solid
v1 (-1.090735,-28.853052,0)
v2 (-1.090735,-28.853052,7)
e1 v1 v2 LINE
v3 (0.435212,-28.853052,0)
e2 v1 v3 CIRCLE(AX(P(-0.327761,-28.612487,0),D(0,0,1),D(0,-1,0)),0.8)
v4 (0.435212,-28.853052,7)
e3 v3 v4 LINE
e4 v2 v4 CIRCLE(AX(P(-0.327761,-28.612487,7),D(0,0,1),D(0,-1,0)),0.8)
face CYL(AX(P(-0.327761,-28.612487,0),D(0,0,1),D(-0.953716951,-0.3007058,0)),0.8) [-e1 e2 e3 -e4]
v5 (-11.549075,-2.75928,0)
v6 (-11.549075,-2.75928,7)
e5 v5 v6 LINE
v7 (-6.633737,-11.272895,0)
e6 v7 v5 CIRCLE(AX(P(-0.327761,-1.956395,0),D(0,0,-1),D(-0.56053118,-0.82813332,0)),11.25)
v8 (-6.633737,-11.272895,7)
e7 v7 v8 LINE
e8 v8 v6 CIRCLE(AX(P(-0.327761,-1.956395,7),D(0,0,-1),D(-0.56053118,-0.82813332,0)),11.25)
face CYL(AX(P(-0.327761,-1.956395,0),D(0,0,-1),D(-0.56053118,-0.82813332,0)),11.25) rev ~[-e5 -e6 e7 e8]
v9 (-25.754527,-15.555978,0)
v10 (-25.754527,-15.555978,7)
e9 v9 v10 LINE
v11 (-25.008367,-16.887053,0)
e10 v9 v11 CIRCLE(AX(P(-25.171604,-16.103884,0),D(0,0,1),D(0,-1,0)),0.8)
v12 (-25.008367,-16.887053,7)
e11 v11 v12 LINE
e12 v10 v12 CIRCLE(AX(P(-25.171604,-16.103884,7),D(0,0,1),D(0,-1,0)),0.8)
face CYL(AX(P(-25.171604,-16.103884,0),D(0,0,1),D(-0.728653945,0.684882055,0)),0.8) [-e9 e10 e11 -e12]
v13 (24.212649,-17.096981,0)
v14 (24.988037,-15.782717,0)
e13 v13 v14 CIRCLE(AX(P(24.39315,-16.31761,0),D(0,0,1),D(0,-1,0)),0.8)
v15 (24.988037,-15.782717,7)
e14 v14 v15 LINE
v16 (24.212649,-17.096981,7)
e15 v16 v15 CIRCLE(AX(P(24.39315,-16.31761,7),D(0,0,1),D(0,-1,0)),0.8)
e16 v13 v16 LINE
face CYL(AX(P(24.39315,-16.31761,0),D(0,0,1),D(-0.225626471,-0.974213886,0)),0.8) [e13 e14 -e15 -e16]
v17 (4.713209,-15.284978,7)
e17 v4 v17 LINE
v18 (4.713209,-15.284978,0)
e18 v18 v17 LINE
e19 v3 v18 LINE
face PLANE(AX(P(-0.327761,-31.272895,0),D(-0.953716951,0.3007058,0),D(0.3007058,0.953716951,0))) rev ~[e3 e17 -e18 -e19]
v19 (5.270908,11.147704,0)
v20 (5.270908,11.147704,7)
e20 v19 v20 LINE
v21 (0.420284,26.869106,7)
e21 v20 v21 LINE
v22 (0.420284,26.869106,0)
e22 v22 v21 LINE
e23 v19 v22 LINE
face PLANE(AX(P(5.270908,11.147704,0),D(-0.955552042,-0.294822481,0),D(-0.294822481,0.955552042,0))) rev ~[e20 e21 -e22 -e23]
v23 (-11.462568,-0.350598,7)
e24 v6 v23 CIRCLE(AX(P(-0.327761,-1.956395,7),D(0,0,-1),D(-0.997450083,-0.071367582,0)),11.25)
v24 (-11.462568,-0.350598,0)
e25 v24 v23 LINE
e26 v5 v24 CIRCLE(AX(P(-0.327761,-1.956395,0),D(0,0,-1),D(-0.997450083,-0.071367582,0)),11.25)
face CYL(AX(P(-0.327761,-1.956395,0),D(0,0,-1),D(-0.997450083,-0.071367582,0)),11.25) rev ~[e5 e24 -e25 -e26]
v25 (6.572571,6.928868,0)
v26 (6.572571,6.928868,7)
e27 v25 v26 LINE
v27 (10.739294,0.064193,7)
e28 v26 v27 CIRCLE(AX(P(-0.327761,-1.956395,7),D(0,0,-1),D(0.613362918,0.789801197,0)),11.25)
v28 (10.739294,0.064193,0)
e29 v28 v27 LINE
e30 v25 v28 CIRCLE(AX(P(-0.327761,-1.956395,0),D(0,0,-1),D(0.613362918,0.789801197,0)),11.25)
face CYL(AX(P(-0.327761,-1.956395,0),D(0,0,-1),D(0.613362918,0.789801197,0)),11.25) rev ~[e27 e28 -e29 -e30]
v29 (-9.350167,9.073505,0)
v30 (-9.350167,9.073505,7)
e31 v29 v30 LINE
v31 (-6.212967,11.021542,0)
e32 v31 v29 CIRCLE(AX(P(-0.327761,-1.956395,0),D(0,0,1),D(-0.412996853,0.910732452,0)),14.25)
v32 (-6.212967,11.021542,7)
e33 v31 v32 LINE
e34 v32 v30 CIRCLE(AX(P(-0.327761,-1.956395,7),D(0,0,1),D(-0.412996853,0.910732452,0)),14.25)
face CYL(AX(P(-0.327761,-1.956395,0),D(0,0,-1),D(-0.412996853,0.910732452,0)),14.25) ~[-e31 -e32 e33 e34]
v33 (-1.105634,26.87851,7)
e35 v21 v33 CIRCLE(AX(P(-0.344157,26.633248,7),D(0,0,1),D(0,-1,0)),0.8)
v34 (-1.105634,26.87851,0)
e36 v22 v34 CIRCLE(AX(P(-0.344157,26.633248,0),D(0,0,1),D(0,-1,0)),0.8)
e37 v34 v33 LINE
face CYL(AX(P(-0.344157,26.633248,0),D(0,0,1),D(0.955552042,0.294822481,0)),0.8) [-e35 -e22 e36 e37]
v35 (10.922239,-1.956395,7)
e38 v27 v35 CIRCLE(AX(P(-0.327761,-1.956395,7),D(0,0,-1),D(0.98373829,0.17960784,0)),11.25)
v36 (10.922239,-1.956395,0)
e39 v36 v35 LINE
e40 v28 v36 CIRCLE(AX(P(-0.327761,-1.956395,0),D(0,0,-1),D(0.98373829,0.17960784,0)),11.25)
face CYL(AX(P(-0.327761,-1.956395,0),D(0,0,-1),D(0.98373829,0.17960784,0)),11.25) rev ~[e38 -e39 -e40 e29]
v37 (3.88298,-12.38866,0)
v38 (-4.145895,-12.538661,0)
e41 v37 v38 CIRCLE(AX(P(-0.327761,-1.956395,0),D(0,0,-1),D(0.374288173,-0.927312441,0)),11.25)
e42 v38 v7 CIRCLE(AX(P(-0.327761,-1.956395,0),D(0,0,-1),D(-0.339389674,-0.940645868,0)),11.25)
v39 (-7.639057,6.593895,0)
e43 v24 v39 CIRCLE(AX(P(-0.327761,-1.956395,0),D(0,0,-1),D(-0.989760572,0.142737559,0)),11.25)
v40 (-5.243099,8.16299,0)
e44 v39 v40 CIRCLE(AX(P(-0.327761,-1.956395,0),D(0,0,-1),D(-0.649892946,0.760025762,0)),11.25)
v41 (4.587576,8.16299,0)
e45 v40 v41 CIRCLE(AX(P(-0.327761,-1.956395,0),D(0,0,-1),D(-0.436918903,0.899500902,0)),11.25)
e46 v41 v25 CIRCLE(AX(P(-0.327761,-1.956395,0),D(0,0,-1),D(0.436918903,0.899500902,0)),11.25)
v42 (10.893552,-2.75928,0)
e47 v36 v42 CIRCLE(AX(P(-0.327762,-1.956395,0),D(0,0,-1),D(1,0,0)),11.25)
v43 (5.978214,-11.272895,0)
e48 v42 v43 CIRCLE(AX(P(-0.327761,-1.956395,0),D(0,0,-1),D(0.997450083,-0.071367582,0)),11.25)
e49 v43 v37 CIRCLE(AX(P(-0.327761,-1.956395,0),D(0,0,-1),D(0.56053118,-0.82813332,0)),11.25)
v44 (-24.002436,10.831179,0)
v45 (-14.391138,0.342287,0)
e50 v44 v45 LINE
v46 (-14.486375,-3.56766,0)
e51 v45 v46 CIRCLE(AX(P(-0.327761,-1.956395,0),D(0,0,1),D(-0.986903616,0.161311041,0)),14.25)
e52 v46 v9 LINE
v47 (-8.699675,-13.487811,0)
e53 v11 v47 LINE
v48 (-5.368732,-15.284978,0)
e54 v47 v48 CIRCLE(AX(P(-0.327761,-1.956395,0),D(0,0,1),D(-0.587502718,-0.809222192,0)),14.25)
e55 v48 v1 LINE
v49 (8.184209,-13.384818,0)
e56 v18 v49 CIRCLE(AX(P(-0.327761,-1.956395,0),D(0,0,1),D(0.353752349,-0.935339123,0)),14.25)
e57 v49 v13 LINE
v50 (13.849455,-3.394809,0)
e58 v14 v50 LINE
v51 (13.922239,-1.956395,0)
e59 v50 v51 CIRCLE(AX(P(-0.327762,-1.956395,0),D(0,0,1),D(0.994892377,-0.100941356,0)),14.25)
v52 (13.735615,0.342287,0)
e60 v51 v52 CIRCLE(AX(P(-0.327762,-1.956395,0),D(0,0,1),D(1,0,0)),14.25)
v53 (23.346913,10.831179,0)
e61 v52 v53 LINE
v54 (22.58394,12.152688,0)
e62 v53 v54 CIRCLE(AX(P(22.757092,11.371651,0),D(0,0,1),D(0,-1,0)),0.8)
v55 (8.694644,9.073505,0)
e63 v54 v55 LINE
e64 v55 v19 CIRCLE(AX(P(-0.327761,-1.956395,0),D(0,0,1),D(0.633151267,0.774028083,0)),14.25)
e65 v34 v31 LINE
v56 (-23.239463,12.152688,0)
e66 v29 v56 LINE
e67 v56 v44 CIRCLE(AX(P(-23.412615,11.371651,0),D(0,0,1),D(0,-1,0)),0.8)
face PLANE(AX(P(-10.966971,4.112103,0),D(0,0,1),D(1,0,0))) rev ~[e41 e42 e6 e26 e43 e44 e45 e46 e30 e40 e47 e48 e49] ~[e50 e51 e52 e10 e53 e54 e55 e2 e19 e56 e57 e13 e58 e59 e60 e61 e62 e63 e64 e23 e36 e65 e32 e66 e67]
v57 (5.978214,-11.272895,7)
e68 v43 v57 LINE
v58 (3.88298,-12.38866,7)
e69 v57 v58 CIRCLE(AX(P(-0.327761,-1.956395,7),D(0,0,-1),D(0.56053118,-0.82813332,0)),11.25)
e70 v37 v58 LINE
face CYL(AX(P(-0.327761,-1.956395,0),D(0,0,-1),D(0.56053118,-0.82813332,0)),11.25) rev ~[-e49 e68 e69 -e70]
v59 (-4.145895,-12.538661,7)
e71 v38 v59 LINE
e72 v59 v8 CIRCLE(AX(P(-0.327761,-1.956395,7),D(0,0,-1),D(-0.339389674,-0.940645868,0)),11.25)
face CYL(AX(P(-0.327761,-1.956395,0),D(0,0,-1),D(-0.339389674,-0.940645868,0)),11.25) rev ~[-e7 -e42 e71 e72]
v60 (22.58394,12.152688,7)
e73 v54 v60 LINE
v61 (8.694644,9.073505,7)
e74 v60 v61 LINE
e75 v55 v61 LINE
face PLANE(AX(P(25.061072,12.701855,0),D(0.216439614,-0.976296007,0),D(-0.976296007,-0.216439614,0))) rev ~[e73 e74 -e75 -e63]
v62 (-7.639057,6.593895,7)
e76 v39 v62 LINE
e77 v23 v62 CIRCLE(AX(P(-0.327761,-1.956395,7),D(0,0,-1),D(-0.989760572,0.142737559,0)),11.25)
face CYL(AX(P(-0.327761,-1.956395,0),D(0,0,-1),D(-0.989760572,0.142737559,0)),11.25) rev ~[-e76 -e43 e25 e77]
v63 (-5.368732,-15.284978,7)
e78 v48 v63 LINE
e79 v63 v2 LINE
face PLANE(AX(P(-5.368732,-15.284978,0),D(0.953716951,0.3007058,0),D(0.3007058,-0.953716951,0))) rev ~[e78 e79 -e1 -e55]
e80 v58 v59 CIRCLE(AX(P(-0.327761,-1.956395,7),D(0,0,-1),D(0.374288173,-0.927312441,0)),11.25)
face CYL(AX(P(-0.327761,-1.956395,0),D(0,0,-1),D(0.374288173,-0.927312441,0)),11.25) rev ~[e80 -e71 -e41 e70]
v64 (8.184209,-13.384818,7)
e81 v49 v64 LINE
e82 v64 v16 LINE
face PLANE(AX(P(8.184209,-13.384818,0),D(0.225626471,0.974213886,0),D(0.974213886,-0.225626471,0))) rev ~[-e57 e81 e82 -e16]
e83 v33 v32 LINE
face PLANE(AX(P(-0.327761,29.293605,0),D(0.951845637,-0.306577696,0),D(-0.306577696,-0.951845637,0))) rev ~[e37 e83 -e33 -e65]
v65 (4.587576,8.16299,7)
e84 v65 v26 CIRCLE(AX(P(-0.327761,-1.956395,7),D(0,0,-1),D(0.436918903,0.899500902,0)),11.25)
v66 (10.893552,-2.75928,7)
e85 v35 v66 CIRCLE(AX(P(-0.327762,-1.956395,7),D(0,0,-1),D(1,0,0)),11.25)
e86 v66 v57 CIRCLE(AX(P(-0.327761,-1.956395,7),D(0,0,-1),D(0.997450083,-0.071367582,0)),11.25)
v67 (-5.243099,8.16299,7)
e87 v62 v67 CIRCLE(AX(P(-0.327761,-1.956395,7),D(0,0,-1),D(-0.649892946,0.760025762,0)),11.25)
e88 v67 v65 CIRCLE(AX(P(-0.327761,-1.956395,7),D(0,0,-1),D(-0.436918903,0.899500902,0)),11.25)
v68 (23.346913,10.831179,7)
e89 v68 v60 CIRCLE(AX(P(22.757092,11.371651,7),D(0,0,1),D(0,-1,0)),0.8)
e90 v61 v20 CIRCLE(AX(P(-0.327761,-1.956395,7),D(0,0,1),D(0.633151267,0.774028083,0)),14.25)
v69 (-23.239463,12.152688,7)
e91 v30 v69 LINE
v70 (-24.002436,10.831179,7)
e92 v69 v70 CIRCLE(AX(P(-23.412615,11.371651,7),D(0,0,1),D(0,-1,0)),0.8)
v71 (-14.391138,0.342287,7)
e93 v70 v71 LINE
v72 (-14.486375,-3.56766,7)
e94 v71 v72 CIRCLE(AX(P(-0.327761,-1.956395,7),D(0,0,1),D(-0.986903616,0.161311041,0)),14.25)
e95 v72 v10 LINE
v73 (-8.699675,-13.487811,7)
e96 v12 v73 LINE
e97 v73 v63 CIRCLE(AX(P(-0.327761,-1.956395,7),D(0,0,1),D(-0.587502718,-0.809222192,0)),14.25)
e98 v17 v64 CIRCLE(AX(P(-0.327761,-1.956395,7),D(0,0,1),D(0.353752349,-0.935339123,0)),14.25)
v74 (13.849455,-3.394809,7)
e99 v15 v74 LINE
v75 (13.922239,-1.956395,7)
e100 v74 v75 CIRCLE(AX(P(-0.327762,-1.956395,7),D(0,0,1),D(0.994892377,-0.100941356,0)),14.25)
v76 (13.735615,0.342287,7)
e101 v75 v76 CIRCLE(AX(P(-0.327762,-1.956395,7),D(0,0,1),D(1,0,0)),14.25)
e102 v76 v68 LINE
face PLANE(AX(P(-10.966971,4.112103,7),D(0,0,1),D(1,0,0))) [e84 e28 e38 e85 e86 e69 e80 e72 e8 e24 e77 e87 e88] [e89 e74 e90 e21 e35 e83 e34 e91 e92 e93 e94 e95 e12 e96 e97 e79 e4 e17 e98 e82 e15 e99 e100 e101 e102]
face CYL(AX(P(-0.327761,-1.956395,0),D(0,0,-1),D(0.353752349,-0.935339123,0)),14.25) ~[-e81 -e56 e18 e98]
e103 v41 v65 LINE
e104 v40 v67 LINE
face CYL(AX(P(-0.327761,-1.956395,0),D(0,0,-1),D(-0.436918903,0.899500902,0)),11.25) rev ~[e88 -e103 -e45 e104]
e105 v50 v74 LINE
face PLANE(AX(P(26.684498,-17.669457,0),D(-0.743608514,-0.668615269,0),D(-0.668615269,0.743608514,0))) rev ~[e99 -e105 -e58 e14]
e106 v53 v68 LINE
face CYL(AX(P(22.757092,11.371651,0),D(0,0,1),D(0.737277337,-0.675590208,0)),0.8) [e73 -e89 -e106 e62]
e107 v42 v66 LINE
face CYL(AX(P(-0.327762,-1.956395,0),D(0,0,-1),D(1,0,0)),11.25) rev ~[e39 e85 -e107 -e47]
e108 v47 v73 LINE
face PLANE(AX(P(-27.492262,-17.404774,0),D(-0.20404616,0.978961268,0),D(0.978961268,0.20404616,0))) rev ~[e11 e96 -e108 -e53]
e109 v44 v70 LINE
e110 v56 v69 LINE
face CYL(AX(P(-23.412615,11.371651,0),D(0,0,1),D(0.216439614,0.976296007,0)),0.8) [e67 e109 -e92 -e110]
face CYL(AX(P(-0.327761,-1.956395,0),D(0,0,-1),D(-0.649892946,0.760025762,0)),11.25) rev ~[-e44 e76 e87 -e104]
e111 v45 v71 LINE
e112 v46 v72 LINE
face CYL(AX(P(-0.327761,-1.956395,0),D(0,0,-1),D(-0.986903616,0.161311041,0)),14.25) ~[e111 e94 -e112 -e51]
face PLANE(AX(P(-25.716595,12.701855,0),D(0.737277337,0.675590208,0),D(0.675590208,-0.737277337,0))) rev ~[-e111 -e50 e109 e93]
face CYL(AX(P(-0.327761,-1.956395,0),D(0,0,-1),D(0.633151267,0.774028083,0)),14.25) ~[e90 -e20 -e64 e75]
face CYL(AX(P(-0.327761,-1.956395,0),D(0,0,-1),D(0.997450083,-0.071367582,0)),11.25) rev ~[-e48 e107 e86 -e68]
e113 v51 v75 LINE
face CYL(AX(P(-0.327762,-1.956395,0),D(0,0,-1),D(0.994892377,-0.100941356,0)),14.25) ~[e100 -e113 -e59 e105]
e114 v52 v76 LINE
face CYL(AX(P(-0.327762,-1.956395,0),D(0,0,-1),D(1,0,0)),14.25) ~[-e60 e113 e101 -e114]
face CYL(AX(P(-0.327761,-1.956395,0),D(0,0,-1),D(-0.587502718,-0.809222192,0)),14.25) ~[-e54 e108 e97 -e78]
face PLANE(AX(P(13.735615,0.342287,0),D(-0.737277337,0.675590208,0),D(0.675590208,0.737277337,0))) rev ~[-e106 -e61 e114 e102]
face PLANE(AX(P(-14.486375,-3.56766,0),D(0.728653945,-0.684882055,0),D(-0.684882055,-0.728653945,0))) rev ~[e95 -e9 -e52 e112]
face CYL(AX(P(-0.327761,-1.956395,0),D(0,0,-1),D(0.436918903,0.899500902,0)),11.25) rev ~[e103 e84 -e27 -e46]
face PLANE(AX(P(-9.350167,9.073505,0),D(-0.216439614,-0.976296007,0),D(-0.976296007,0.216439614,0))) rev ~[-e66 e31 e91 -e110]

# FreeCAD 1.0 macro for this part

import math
import FreeCAD as App
import Part
import Sketcher
Q = App.Units.Quantity


def edges_at(feature, points):
    """Names of the edges that pass closest to the given points."""
    edges = feature.Shape.Edges
    near = lambda p: min(range(len(edges)), key=lambda i: edges[i].distToShape(Part.Vertex(*p))[0])
    return sorted({f"Edge{near(p) + 1}" for p in points})

doc = App.newDocument("Part")
params = doc.addObject("Spreadsheet::Sheet", "Params")
for row, (alias, value) in enumerate([
    ("sketch1_radius", "14.25 mm"),
    ("sketch1_radius2", "11.25 mm"),
    ("pad1_length", "7 mm"),
    ("fillet_radius", "0.8 mm"),
], start=1):
    params.set(f"A{row}", alias)
    params.set(f"B{row}", "=" + value)
    params.setAlias(f"B{row}", alias)

body = doc.addObject("PartDesign::Body", "Body")

# Sketch on XY plane
sketch1 = body.newObject("Sketcher::SketchObject", "Sketch")
sketch1.AttachmentSupport = (doc.getObject("XY_Plane"), [""])
sketch1.MapMode = "FlatFace"
sketch1.addGeometry([
    Part.ArcOfCircle(Part.Circle(App.Vector(-0.3, -2, 0), App.Vector(0, 0, 1), 14.2), math.radians(114.39), math.radians(129.28)),  # 0
    Part.LineSegment(App.Vector(-9.4, 9.1, 0), App.Vector(-25.7, 12.7, 0)),  # 1
    Part.LineSegment(App.Vector(-25.7, 12.7, 0), App.Vector(-14.4, 0.3, 0)),  # 2
    Part.ArcOfCircle(Part.Circle(App.Vector(-0.3, -2, 0), App.Vector(0, 0, 1), 14.3), math.radians(170.72), math.radians(186.49)),  # 3
    Part.LineSegment(App.Vector(-14.5, -3.6, 0), App.Vector(-27.5, -17.4, 0)),  # 4
    Part.LineSegment(App.Vector(-27.5, -17.4, 0), App.Vector(-8.7, -13.5, 0)),  # 5
    Part.ArcOfCircle(Part.Circle(App.Vector(-0.3, -2, 0), App.Vector(0, 0, 1), 14.2), math.radians(-125.98), math.radians(-110.72)),  # 6
    Part.LineSegment(App.Vector(-5.4, -15.3, 0), App.Vector(-0.3, -31.3, 0)),  # 7
    Part.LineSegment(App.Vector(-0.3, -31.3, 0), App.Vector(4.7, -15.3, 0)),  # 8
    Part.ArcOfCircle(Part.Circle(App.Vector(-0.3, -2, 0), App.Vector(0, 0, 1), 14.2), math.radians(-69.28), math.radians(-53.32)),  # 9
    Part.LineSegment(App.Vector(8.2, -13.4, 0), App.Vector(26.7, -17.7, 0)),  # 10
    Part.LineSegment(App.Vector(26.7, -17.7, 0), App.Vector(13.8, -3.4, 0)),  # 11
    Part.ArcOfCircle(Part.Circle(App.Vector(-0.3, -2, 0), App.Vector(0, 0, 1), 14.3), math.radians(-5.79), math.radians(0)),  # 12
    Part.ArcOfCircle(Part.Circle(App.Vector(-0.3, -2, 0), App.Vector(0, 0, 1), 14.3), math.radians(0), math.radians(9.28)),  # 13
    Part.LineSegment(App.Vector(13.7, 0.3, 0), App.Vector(25.1, 12.7, 0)),  # 14
    Part.LineSegment(App.Vector(25.1, 12.7, 0), App.Vector(8.7, 9.1, 0)),  # 15
    Part.ArcOfCircle(Part.Circle(App.Vector(-0.3, -2, 0), App.Vector(0, 0, 1), 14.3), math.radians(50.72), math.radians(66.87)),  # 16
    Part.LineSegment(App.Vector(5.3, 11.1, 0), App.Vector(-0.3, 29.3, 0)),  # 17
    Part.LineSegment(App.Vector(-0.3, 29.3, 0), App.Vector(-6.2, 11, 0)),  # 18
    Part.ArcOfCircle(Part.Circle(App.Vector(-0.3, -2, 0), App.Vector(0, 0, 1), 11.2), math.radians(171.79), math.radians(184.09)),  # 19
    Part.ArcOfCircle(Part.Circle(App.Vector(-0.3, -2, 0), App.Vector(0, 0, 1), 11.2), math.radians(131), math.radians(172)),  # 20
    Part.ArcOfCircle(Part.Circle(App.Vector(-0.3, -2, 0), App.Vector(0, 0, 1), 11.2), math.radians(115.91), math.radians(130.53)),  # 21
    Part.ArcOfCircle(Part.Circle(App.Vector(-0.3, -2, 0), App.Vector(0, 0, 1), 11.2), math.radians(64), math.radians(116)),  # 22
    Part.ArcOfCircle(Part.Circle(App.Vector(-0.3, -2, 0), App.Vector(0, 0, 1), 11.3), math.radians(52.17), math.radians(64.09)),  # 23
    Part.ArcOfCircle(Part.Circle(App.Vector(-0.3, -2, 0), App.Vector(0, 0, 1), 11.2), math.radians(10), math.radians(52)),  # 24
    Part.ArcOfCircle(Part.Circle(App.Vector(-0.3, -2, 0), App.Vector(0, 0, 1), 11.3), math.radians(0), math.radians(10.35)),  # 25
    Part.ArcOfCircle(Part.Circle(App.Vector(-0.3, -2, 0), App.Vector(0, 0, 1), 11.3), math.radians(-4.09), math.radians(0)),  # 26
    Part.ArcOfCircle(Part.Circle(App.Vector(-0.3, -2, 0), App.Vector(0, 0, 1), 11.2), math.radians(-56), math.radians(-4)),  # 27
    Part.ArcOfCircle(Part.Circle(App.Vector(-0.3, -2, 0), App.Vector(0, 0, 1), 11.2), math.radians(-68.02), math.radians(-55.91)),  # 28
    Part.ArcOfCircle(Part.Circle(App.Vector(-0.3, -2, 0), App.Vector(0, 0, 1), 11.3), math.radians(-110), math.radians(-68)),  # 29
    Part.ArcOfCircle(Part.Circle(App.Vector(-0.3, -2, 0), App.Vector(0, 0, 1), 11.3), math.radians(-124.09), math.radians(-109.84)),  # 30
    Part.ArcOfCircle(Part.Circle(App.Vector(-0.3, -2, 0), App.Vector(0, 0, 1), 11.2), math.radians(-176), math.radians(-124)),  # 31
], False)
sketch1.addConstraint([
    Sketcher.Constraint("Coincident", 0, 2, 1, 1),
    Sketcher.Constraint("Coincident", 1, 2, 2, 1),
    Sketcher.Constraint("Coincident", 2, 2, 3, 1),
    Sketcher.Constraint("Coincident", 3, 2, 4, 1),
    Sketcher.Constraint("Coincident", 4, 2, 5, 1),
    Sketcher.Constraint("Coincident", 5, 2, 6, 1),
    Sketcher.Constraint("Coincident", 6, 2, 7, 1),
    Sketcher.Constraint("Coincident", 7, 2, 8, 1),
    Sketcher.Constraint("Coincident", 8, 2, 9, 1),
    Sketcher.Constraint("Coincident", 9, 2, 10, 1),
    Sketcher.Constraint("Coincident", 10, 2, 11, 1),
    Sketcher.Constraint("Coincident", 11, 2, 12, 1),
    Sketcher.Constraint("Tangent", 12, 2, 13, 1),
    Sketcher.Constraint("Coincident", 13, 2, 14, 1),
    Sketcher.Constraint("Coincident", 14, 2, 15, 1),
    Sketcher.Constraint("Coincident", 15, 2, 16, 1),
    Sketcher.Constraint("Coincident", 16, 2, 17, 1),
    Sketcher.Constraint("Coincident", 17, 2, 18, 1),
    Sketcher.Constraint("Coincident", 18, 2, 0, 1),
    Sketcher.Constraint("Tangent", 19, 1, 20, 2),
    Sketcher.Constraint("Tangent", 20, 1, 21, 2),
    Sketcher.Constraint("Tangent", 21, 1, 22, 2),
    Sketcher.Constraint("Tangent", 22, 1, 23, 2),
    Sketcher.Constraint("Tangent", 23, 1, 24, 2),
    Sketcher.Constraint("Tangent", 24, 1, 25, 2),
    Sketcher.Constraint("Tangent", 25, 1, 26, 2),
    Sketcher.Constraint("Tangent", 26, 1, 27, 2),
    Sketcher.Constraint("Tangent", 27, 1, 28, 2),
    Sketcher.Constraint("Tangent", 28, 1, 29, 2),
    Sketcher.Constraint("Tangent", 29, 1, 30, 2),
    Sketcher.Constraint("Tangent", 30, 1, 31, 2),
    Sketcher.Constraint("Tangent", 31, 1, 19, 2),
    Sketcher.Constraint("Coincident", 3, 3, 0, 3),
    Sketcher.Constraint("Coincident", 6, 3, 0, 3),
    Sketcher.Constraint("Coincident", 9, 3, 0, 3),
    Sketcher.Constraint("Coincident", 12, 3, 0, 3),
    Sketcher.Constraint("Coincident", 16, 3, 0, 3),
    Sketcher.Constraint("Coincident", 19, 3, 0, 3),
    Sketcher.Constraint("Coincident", 21, 3, 0, 3),
    Sketcher.Constraint("Coincident", 23, 3, 0, 3),
    Sketcher.Constraint("Coincident", 25, 3, 0, 3),
    Sketcher.Constraint("Coincident", 27, 3, 0, 3),
    Sketcher.Constraint("Coincident", 29, 3, 0, 3),
    Sketcher.Constraint("Equal", 0, 3),
    Sketcher.Constraint("Equal", 3, 6),
    Sketcher.Constraint("Equal", 6, 9),
    Sketcher.Constraint("Equal", 9, 12),
    Sketcher.Constraint("Equal", 12, 13),
    Sketcher.Constraint("Equal", 13, 16),
    Sketcher.Constraint("Horizontal", 6, 2, 8, 2),
    Sketcher.Constraint("Horizontal", 31, 3, 12, 2),
    Sketcher.Constraint("Horizontal", 2, 2, 13, 2),
    Sketcher.Constraint("Horizontal", 1, 2, 14, 2),
    Sketcher.Constraint("Horizontal", 0, 2, 15, 2),
    Sketcher.Constraint("Horizontal", 21, 1, 22, 1),
    Sketcher.Constraint("Horizontal", 12, 2, 25, 1),
    Sketcher.Constraint("Horizontal", 27, 1, 30, 1),
    Sketcher.Constraint("Horizontal", 26, 1, 31, 1),
    Sketcher.Constraint("Vertical", 31, 3, 7, 2),
    Sketcher.Constraint("Vertical", 7, 2, 17, 2),
    Sketcher.Constraint("Equal", 1, 2),
    Sketcher.Constraint("Equal", 2, 7),
    Sketcher.Constraint("Equal", 4, 10),
    Sketcher.Constraint("Equal", 5, 11),
    Sketcher.Constraint("Equal", 8, 14),
    Sketcher.Constraint("Equal", 10, 17),
    Sketcher.Constraint("Equal", 11, 18),
    Sketcher.Constraint("Radius", 0, 14.25),
    Sketcher.Constraint("Radius", 19, 11.25),
    Sketcher.Constraint("Angle", 1, Q("167.5 deg")),
    Sketcher.Constraint("Angle", 2, Q("-47.5 deg")),
    Sketcher.Constraint("Angle", 7, Q("-72.5 deg")),
    Sketcher.Constraint("DistanceY", 29, 1, 28, 1, 0.150001),
    Sketcher.Constraint("DistanceX", 8, 2, 9, 2, 3.471),
    Sketcher.Constraint("DistanceX", -1, 1, 10, 2, 26.684498),
    Sketcher.Constraint("DistanceX", 21, 1, -1, 1, 5.243099),
    Sketcher.Constraint("DistanceY", 12, 3, 0, 2, 11.0299),
    Sketcher.Constraint("DistanceX", 4, 2, 12, 3, 27.1645),
    Sketcher.Constraint("DistanceX", 3, 2, 5, 2, 5.786699),
    Sketcher.Constraint("DistanceY", 15, 2, 16, 2, 2.074199),
    Sketcher.Constraint("DistanceY", 16, 2, 17, 2, 18.145901),
    Sketcher.Constraint("DistanceX", 0, 2, 18, 2, 3.1372),
    Sketcher.Constraint("DistanceX", 19, 1, 0, 2, 2.112401),
    Sketcher.Constraint("DistanceY", 27, 1, 25, 1, 9.3165),
    Sketcher.Constraint("DistanceX", 3, 2, 31, 1, 2.9373),
    Sketcher.Constraint("DistanceX", 0, 3, -1, 1, 0.327761),
    Sketcher.Constraint("DistanceY", 3, 2, -1, 1, 3.56766),
    Sketcher.Constraint("DistanceX", -1, 1, 23, 1, 6.572571),
    Sketcher.Constraint("DistanceX", -1, 1, 28, 1, 3.88298),
    Sketcher.Constraint("DistanceX", 0, 2, 20, 1, 1.71111),
    Sketcher.Constraint("DistanceX", 24, 1, 13, 2, 2.996321),
])
sketch1.setExpression("Constraints[67]", "Params.sketch1_radius")
sketch1.setExpression("Constraints[68]", "Params.sketch1_radius2")
pad1 = body.newObject("PartDesign::Pad", "Pad")
pad1.Profile = sketch1
pad1.setExpression("Length", "Params.pad1_length")
doc.recompute()

fillet = body.newObject("PartDesign::Fillet", "Fillet")
fillet.Base = (pad1, edges_at(pad1, [
    (-0.328, -31.273, 3.5),
    (26.684, -17.669, 3.5),
    (25.061, 12.702, 3.5),
    (-27.492, -17.405, 3.5),
    (-25.717, 12.702, 3.5),
    (-0.328, 29.294, 3.5),
]))
fillet.setExpression("Radius", "Params.fillet_radius")

doc.recompute()
